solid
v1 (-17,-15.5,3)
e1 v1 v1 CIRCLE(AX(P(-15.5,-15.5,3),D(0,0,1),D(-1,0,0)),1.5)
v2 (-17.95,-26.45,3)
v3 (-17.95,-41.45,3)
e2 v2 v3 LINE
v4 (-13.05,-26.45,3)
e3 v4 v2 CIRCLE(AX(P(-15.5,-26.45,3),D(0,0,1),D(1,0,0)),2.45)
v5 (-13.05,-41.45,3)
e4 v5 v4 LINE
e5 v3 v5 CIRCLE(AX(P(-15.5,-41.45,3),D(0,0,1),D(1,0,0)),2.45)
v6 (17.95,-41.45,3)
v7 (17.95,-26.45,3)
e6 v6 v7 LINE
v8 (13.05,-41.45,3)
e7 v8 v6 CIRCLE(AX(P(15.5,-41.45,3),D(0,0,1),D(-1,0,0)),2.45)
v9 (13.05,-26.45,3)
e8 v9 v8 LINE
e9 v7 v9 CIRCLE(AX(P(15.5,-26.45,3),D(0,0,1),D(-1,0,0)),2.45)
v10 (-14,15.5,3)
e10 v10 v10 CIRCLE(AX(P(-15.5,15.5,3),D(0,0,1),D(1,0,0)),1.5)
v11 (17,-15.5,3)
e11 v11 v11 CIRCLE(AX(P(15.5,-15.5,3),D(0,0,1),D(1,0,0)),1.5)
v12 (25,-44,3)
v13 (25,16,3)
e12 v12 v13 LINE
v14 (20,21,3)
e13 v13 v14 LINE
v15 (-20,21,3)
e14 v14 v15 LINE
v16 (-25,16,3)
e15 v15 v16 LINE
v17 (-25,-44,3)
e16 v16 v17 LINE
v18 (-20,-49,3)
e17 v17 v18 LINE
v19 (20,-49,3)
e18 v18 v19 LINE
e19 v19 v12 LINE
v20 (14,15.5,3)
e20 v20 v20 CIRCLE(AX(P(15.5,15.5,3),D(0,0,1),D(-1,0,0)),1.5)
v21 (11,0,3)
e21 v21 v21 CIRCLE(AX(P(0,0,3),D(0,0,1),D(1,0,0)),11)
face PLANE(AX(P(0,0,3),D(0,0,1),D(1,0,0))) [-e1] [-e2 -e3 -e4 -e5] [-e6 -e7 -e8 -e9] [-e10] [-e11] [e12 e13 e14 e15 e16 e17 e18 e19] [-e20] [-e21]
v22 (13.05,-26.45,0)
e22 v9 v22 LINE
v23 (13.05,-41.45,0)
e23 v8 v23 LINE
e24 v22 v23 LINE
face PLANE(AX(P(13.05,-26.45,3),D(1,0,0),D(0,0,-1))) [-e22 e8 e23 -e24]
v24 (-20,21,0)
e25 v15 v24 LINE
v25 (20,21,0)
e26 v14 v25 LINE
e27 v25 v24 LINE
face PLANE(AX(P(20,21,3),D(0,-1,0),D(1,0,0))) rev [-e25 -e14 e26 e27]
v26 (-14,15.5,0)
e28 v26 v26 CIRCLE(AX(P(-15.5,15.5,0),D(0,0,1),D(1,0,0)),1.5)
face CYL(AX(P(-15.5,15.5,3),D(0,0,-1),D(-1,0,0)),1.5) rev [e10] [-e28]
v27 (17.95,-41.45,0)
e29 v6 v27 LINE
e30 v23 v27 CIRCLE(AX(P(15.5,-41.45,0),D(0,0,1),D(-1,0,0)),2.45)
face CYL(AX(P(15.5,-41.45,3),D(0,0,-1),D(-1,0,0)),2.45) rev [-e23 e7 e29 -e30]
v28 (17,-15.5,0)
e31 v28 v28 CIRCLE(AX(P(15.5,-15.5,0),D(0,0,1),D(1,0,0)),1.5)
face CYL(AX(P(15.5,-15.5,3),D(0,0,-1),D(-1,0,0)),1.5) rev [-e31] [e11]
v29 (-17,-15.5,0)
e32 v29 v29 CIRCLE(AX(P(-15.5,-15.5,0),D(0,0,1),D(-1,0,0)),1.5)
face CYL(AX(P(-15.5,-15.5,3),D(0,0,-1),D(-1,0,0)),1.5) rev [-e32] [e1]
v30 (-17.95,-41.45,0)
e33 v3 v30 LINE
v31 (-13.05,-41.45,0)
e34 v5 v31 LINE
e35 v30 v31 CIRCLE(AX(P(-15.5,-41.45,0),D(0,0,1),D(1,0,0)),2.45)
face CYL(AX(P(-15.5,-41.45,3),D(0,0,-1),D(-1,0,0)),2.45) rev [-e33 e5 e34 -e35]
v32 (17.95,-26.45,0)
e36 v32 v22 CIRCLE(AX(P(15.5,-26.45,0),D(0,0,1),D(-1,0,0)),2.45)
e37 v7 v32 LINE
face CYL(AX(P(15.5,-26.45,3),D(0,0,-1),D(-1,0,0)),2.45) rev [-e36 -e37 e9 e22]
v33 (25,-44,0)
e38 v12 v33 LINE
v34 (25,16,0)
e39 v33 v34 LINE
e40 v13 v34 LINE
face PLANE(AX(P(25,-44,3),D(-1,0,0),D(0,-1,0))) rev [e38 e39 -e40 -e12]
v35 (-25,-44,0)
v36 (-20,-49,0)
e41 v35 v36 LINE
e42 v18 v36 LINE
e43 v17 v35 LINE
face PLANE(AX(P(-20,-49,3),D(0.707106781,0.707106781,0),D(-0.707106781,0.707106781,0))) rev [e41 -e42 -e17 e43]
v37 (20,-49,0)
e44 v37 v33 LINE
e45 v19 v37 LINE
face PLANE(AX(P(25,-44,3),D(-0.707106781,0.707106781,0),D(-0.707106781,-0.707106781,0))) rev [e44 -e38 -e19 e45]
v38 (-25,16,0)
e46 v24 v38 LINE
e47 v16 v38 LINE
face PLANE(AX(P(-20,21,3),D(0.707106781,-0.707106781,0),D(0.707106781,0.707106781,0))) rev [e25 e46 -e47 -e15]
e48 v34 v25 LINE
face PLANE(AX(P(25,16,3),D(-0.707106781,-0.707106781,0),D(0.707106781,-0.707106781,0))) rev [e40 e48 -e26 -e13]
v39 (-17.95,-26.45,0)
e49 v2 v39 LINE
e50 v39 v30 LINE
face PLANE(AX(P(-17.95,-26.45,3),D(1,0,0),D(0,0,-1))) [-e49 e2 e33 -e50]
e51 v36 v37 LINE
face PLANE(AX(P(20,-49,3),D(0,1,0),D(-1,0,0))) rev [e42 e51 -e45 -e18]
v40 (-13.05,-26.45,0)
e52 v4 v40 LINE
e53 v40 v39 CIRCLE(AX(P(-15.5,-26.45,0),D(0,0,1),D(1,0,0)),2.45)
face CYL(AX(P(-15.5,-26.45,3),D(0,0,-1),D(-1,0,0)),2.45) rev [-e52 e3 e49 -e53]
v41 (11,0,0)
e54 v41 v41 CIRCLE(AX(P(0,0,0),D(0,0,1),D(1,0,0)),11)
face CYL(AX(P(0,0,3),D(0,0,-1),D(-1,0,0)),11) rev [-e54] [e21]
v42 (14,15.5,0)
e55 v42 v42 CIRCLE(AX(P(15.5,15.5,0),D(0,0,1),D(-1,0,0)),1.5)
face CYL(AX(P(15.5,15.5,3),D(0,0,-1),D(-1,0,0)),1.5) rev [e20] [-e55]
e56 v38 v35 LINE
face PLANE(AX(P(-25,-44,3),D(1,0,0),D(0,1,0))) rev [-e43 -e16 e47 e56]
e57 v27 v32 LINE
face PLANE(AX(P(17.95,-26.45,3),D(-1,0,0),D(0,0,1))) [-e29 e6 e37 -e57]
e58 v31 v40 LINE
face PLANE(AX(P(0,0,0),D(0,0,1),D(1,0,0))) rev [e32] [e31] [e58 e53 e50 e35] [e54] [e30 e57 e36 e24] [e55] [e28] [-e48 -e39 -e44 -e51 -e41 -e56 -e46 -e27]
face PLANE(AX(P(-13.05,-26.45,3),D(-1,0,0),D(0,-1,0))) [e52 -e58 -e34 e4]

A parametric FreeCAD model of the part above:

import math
import FreeCAD as App
import Part
import Sketcher

V = App.Vector

doc = App.newDocument("Part")
params = doc.addObject("Spreadsheet::Sheet", "Params")
for row, (alias, value) in enumerate([
    ("sketch1_diameter", "3 mm"),
    ("sketch1_diameter2", "22 mm"),
    ("sketch1_width", "40 mm"),
    ("sketch1_height", "60 mm"),
    ("sketch1_height2", "15 mm"),
    ("pad1_length", "3 mm"),
], start=1):
    params.set(f"A{row}", alias)
    params.set(f"B{row}", "=" + value)
    params.setAlias(f"B{row}", alias)

body = doc.addObject("PartDesign::Body", "Body")

# Sketch on XY plane
sketch1 = doc.addObject("Sketcher::SketchObject", "Sketch")
body.addObject(sketch1)
sketch1.AttachmentSupport = (doc.XY_Plane, [""])
sketch1.MapMode = "FlatFace"
sketch1.addGeometry(Part.LineSegment(V(-20, -49, 0), V(20, -49, 0)), False)
sketch1.addGeometry(Part.LineSegment(V(20, -49, 0), V(25, -44, 0)), False)
sketch1.addGeometry(Part.LineSegment(V(25, -44, 0), V(25, 16, 0)), False)
sketch1.addGeometry(Part.LineSegment(V(25, 16, 0), V(20, 21, 0)), False)
sketch1.addGeometry(Part.LineSegment(V(20, 21, 0), V(-20, 21, 0)), False)
sketch1.addGeometry(Part.LineSegment(V(-20, 21, 0), V(-25, 16, 0)), False)
sketch1.addGeometry(Part.LineSegment(V(-25, 16, 0), V(-25, -44, 0)), False)
sketch1.addGeometry(Part.LineSegment(V(-25, -44, 0), V(-20, -49, 0)), False)
sketch1.addGeometry(Part.ArcOfCircle(Part.Circle(V(15.5, -26.45, 0), V(0, 0, 1), 2.45), math.radians(0), math.radians(180)), False)
sketch1.addGeometry(Part.LineSegment(V(17.95, -26.45, 0), V(17.95, -41.45, 0)), False)
sketch1.addGeometry(Part.ArcOfCircle(Part.Circle(V(15.5, -41.45, 0), V(0, 0, 1), 2.45), math.radians(180), math.radians(360)), False)
sketch1.addGeometry(Part.LineSegment(V(13.05, -41.45, 0), V(13.05, -26.45, 0)), False)
sketch1.addGeometry(Part.Circle(V(15.5, -15.5, 0), V(0, 0, 1), 1.5), False)
sketch1.addGeometry(Part.LineSegment(V(-13.05, -26.45, 0), V(-13.05, -41.45, 0)), False)
sketch1.addGeometry(Part.ArcOfCircle(Part.Circle(V(-15.5, -41.45, 0), V(0, 0, 1), 2.45), math.radians(180), math.radians(360)), False)
sketch1.addGeometry(Part.LineSegment(V(-17.95, -41.45, 0), V(-17.95, -26.45, 0)), False)
sketch1.addGeometry(Part.ArcOfCircle(Part.Circle(V(-15.5, -26.45, 0), V(0, 0, 1), 2.45), math.radians(0), math.radians(180)), False)
sketch1.addGeometry(Part.Circle(V(-15.5, -15.5, 0), V(0, 0, 1), 1.5), False)
sketch1.addGeometry(Part.Circle(V(15.5, 15.5, 0), V(0, 0, 1), 1.5), False)
sketch1.addGeometry(Part.Circle(V(0, 0, 0), V(0, 0, 1), 11), False)
sketch1.addGeometry(Part.Circle(V(-15.5, 15.5, 0), V(0, 0, 1), 1.5), False)
sketch1.addConstraint(Sketcher.Constraint("Coincident", 0, 2, 1, 1))
sketch1.addConstraint(Sketcher.Constraint("Coincident", 1, 2, 2, 1))
sketch1.addConstraint(Sketcher.Constraint("Coincident", 2, 2, 3, 1))
sketch1.addConstraint(Sketcher.Constraint("Coincident", 3, 2, 4, 1))
sketch1.addConstraint(Sketcher.Constraint("Coincident", 4, 2, 5, 1))
sketch1.addConstraint(Sketcher.Constraint("Coincident", 5, 2, 6, 1))
sketch1.addConstraint(Sketcher.Constraint("Coincident", 6, 2, 7, 1))
sketch1.addConstraint(Sketcher.Constraint("Coincident", 7, 2, 0, 1))
sketch1.addConstraint(Sketcher.Constraint("Tangent", 8, 1, 9, 1))
sketch1.addConstraint(Sketcher.Constraint("Tangent", 9, 2, 10, 2))
sketch1.addConstraint(Sketcher.Constraint("Tangent", 10, 1, 11, 1))
sketch1.addConstraint(Sketcher.Constraint("Tangent", 11, 2, 8, 2))
sketch1.addConstraint(Sketcher.Constraint("Tangent", 13, 2, 14, 2))
sketch1.addConstraint(Sketcher.Constraint("Tangent", 14, 1, 15, 1))
sketch1.addConstraint(Sketcher.Constraint("Tangent", 15, 2, 16, 2))
sketch1.addConstraint(Sketcher.Constraint("Tangent", 16, 1, 13, 1))
sketch1.addConstraint(Sketcher.Constraint("Horizontal", 0))
sketch1.addConstraint(Sketcher.Constraint("Vertical", 2))
sketch1.addConstraint(Sketcher.Constraint("Horizontal", 4))
sketch1.addConstraint(Sketcher.Constraint("Vertical", 6))
sketch1.addConstraint(Sketcher.Constraint("Vertical", 9))
sketch1.addConstraint(Sketcher.Constraint("Vertical", 11))
sketch1.addConstraint(Sketcher.Constraint("Vertical", 13))
sketch1.addConstraint(Sketcher.Constraint("Vertical", 15))
sketch1.addConstraint(Sketcher.Constraint("Coincident", 19, 3, -1, 1))
sketch1.addConstraint(Sketcher.Constraint("Equal", 10, 14))
sketch1.addConstraint(Sketcher.Constraint("Equal", 12, 17))
sketch1.addConstraint(Sketcher.Constraint("Equal", 17, 18))
sketch1.addConstraint(Sketcher.Constraint("Equal", 18, 20))
sketch1.addConstraint(Sketcher.Constraint("Symmetric", 17, 3, 18, 3, -1, 1))
sketch1.addConstraint(Sketcher.Constraint("Symmetric", 12, 3, 20, 3, -1, 1))
sketch1.addConstraint(Sketcher.Constraint("Symmetric", 10, 3, 14, 3, -2))
sketch1.addConstraint(Sketcher.Constraint("Symmetric", 12, 3, 17, 3, -2))
sketch1.addConstraint(Sketcher.Constraint("Symmetric", 2, 2, 5, 2, -2))
sketch1.addConstraint(Sketcher.Constraint("Perpendicular", 1, 3))
sketch1.addConstraint(Sketcher.Constraint("Perpendicular", 3, 5))
sketch1.addConstraint(Sketcher.Constraint("Perpendicular", 5, 7))
sketch1.addConstraint(Sketcher.Constraint("Horizontal", 8, 3, 16, 3))
sketch1.addConstraint(Sketcher.Constraint("Horizontal", 1, 2, 6, 2))
sketch1.addConstraint(Sketcher.Constraint("Vertical", 10, 3, 12, 3))
sketch1.addConstraint(Sketcher.Constraint("Vertical", 0, 2, 3, 2))
sketch1.addConstraint(Sketcher.Constraint("Vertical", 4, 2, 7, 2))
sketch1.addConstraint(Sketcher.Constraint("Diameter", 12, 3.0))
sketch1.addConstraint(Sketcher.Constraint("Diameter", 19, 22.0))
sketch1.addConstraint(Sketcher.Constraint("DistanceX", 0, 1, 0, 2, 40.0))
sketch1.addConstraint(Sketcher.Constraint("DistanceY", 2, 1, 2, 2, 60.0))
sketch1.addConstraint(Sketcher.Constraint("DistanceY", 9, 2, 9, 1, 15.0))
sketch1.addConstraint(Sketcher.Constraint("Radius", 8, 2.45))
sketch1.addConstraint(Sketcher.Constraint("DistanceY", 0, 2, -1, 1, 49.0))
sketch1.addConstraint(Sketcher.Constraint("DistanceX", -1, 1, 1, 2, 25.0))
sketch1.addConstraint(Sketcher.Constraint("DistanceX", 14, 3, 10, 3, 31.0))
sketch1.addConstraint(Sketcher.Constraint("DistanceY", 12, 3, 18, 3, 31.0))
sketch1.addConstraint(Sketcher.Constraint("DistanceY", 8, 3, -1, 1, 26.45))
sketch1.setExpression("Constraints[42]", "Params.sketch1_diameter")
sketch1.setExpression("Constraints[43]", "Params.sketch1_diameter2")
sketch1.setExpression("Constraints[44]", "Params.sketch1_width")
sketch1.setExpression("Constraints[45]", "Params.sketch1_height")
sketch1.setExpression("Constraints[46]", "Params.sketch1_height2")
pad1 = doc.addObject("PartDesign::Pad", "Pad")
body.addObject(pad1)
pad1.Profile = sketch1
pad1.setExpression("Length", "Params.pad1_length")

doc.recompute()
